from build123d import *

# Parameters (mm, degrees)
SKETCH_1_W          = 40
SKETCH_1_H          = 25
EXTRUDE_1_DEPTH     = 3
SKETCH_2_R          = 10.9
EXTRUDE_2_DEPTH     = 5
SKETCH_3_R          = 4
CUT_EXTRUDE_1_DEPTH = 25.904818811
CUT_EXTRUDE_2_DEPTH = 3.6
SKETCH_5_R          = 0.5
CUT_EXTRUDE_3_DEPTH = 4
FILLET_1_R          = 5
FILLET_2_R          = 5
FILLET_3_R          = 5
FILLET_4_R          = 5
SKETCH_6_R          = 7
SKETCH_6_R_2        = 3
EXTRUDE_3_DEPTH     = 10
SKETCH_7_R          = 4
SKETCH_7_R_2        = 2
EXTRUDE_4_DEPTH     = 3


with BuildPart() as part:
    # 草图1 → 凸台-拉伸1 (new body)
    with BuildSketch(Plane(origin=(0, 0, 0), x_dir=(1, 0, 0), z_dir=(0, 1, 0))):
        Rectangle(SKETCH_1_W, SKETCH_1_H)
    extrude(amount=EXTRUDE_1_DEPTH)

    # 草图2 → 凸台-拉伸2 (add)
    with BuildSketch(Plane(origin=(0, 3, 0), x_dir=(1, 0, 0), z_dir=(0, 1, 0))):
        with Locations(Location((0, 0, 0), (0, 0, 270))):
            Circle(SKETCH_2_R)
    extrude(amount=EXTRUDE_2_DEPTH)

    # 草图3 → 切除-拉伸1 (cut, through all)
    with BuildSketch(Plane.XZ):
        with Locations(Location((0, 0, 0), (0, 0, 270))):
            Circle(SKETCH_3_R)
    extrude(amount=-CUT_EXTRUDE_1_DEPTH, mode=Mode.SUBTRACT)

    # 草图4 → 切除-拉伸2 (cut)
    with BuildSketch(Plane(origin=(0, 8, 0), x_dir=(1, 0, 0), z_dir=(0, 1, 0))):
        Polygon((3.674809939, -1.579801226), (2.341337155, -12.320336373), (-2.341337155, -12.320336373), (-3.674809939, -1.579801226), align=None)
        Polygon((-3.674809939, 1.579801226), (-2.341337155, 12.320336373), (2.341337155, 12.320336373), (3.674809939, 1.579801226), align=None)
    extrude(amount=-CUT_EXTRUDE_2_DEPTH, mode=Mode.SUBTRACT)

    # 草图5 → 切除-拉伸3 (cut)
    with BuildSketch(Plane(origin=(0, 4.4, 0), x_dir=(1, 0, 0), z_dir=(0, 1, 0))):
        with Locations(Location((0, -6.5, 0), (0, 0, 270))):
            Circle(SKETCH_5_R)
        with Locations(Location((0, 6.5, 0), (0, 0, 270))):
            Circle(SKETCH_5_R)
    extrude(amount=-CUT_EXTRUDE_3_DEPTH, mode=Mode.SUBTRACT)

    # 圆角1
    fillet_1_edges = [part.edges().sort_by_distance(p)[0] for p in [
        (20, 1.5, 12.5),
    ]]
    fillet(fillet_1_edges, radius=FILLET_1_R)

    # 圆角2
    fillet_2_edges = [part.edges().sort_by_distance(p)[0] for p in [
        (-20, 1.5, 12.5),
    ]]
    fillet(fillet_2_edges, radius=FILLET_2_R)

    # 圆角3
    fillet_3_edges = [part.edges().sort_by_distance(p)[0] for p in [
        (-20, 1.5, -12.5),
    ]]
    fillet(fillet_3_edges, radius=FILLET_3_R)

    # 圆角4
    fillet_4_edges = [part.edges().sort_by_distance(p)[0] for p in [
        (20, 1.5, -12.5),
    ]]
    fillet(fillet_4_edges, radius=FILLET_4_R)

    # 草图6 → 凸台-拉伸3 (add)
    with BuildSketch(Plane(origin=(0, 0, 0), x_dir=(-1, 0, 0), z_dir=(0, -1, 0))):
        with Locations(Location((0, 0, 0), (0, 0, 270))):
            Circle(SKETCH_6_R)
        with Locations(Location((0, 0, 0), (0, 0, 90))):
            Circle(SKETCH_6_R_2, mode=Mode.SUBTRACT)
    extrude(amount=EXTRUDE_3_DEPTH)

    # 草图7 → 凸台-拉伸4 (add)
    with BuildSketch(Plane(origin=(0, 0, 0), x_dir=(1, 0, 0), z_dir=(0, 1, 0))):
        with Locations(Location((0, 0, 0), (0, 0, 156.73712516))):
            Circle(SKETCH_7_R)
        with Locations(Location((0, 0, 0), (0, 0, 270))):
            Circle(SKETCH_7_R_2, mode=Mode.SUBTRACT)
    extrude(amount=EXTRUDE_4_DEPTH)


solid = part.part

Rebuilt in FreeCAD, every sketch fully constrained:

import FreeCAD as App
import Part
import Sketcher

V = App.Vector


def edges_at(feature, points):
    """Names of the edges that pass closest to the given points."""
    edges = feature.Shape.Edges
    near = lambda p: min(range(len(edges)), key=lambda i: edges[i].distToShape(Part.Vertex(*p))[0])
    return sorted({f"Edge{near(p) + 1}" for p in points})


def add_polygon(sketch, points):
    """Adds a closed chain of lines whose ends are joined by coincident constraints."""
    first, n = sketch.GeometryCount, len(points)
    for a, b in zip(points, points[1:] + points[:1]):
        sketch.addGeometry(Part.LineSegment(App.Vector(*a, 0), App.Vector(*b, 0)), False)
    for i in range(n):
        sketch.addConstraint(Sketcher.Constraint("Coincident", first + i, 2, first + (i + 1) % n, 1))

doc = App.newDocument("Part")
body = doc.addObject("PartDesign::Body", "Body")

# Sketch on XZ plane
sketch1 = doc.addObject("Sketcher::SketchObject", "Sketch")
body.addObject(sketch1)
sketch1.AttachmentSupport = (doc.XZ_Plane, [""])
sketch1.MapMode = "FlatFace"
add_polygon(sketch1, [(-20, -12), (-20, 12), (20, 12), (20, -12)])  # lines 0-3
sketch1.addConstraint(Sketcher.Constraint("Vertical", 0))
sketch1.addConstraint(Sketcher.Constraint("Horizontal", 1))
sketch1.addConstraint(Sketcher.Constraint("Vertical", 2))
sketch1.addConstraint(Sketcher.Constraint("Horizontal", 3))
sketch1.addConstraint(Sketcher.Constraint("Symmetric", 0, 2, 2, 2, -1, 1))
sketch1.addConstraint(Sketcher.Constraint("DistanceX", 1, 1, 1, 2, 40.0))
sketch1.addConstraint(Sketcher.Constraint("DistanceY", 0, 1, 0, 2, 25.0))
pad1 = doc.addObject("PartDesign::Pad", "Pad")
body.addObject(pad1)
pad1.Profile = sketch1
pad1.Length = 3
pad1.Reversed = True

# Sketch on XZ plane
sketch2 = doc.addObject("Sketcher::SketchObject", "Sketch001")
body.addObject(sketch2)
sketch2.AttachmentSupport = (doc.XZ_Plane, [""])
sketch2.MapMode = "FlatFace"
sketch2.AttachmentOffset = App.Placement(V(0, 0, -3), App.Rotation())
sketch2.addGeometry(Part.Circle(V(0, 0, 0), V(0, 0, 1), 11), False)
sketch2.addConstraint(Sketcher.Constraint("Coincident", 0, 3, -1, 1))
sketch2.addConstraint(Sketcher.Constraint("Diameter", 0, 21.8))
pad2 = doc.addObject("PartDesign::Pad", "Pad001")
body.addObject(pad2)
pad2.Profile = sketch2
pad2.Length = 5
pad2.Reversed = True

# Sketch on XZ plane
sketch3 = doc.addObject("Sketcher::SketchObject", "Sketch002")
body.addObject(sketch3)
sketch3.AttachmentSupport = (doc.XZ_Plane, [""])
sketch3.MapMode = "FlatFace"
sketch3.addGeometry(Part.Circle(V(0, 0, 0), V(0, 0, 1), 4), False)
sketch3.addConstraint(Sketcher.Constraint("Coincident", 0, 3, -1, 1))
sketch3.addConstraint(Sketcher.Constraint("Diameter", 0, 8.0))
pocket1 = doc.addObject("PartDesign::Pocket", "Pocket")
body.addObject(pocket1)
pocket1.Profile = sketch3
pocket1.Type = "ThroughAll"

# Sketch on XZ plane
sketch4 = doc.addObject("Sketcher::SketchObject", "Sketch003")
body.addObject(sketch4)
sketch4.AttachmentSupport = (doc.XZ_Plane, [""])
sketch4.MapMode = "FlatFace"
sketch4.AttachmentOffset = App.Placement(V(0, 0, -8), App.Rotation())
add_polygon(sketch4, [(2.3, 12.3), (3.7, 1.6), (-3.7, 1.6), (-2.3, 12.3)])  # lines 0-3
add_polygon(sketch4, [(-2.3, -12.3), (-3.7, -1.6), (3.7, -1.6), (2.3, -12.3)])  # lines 4-7
sketch4.addConstraint(Sketcher.Constraint("Horizontal", 1))
sketch4.addConstraint(Sketcher.Constraint("Horizontal", 3))
sketch4.addConstraint(Sketcher.Constraint("Horizontal", 5))
sketch4.addConstraint(Sketcher.Constraint("Horizontal", 7))
sketch4.addConstraint(Sketcher.Constraint("Symmetric", 0, 2, 4, 2, -1, 1))
sketch4.addConstraint(Sketcher.Constraint("Symmetric", 2, 2, 6, 2, -1, 1))
sketch4.addConstraint(Sketcher.Constraint("Parallel", 0, 4))
sketch4.addConstraint(Sketcher.Constraint("Parallel", 2, 6))
sketch4.addConstraint(Sketcher.Constraint("Vertical", 1, 2, 4, 2))
sketch4.addConstraint(Sketcher.Constraint("Vertical", 3, 2, 6, 2))
sketch4.addConstraint(Sketcher.Constraint("DistanceX", 1, 2, 1, 1, 7.34962))
sketch4.addConstraint(Sketcher.Constraint("DistanceY", -1, 1, 0, 2, 1.579801))
sketch4.addConstraint(Sketcher.Constraint("DistanceX", 3, 1, 3, 2, 4.682674))
sketch4.addConstraint(Sketcher.Constraint("Distance", 0, 10.822996))
pocket2 = doc.addObject("PartDesign::Pocket", "Pocket001")
body.addObject(pocket2)
pocket2.Profile = sketch4
pocket2.Length = 3.6
pocket2.Reversed = True

# Sketch on XZ plane
sketch5 = doc.addObject("Sketcher::SketchObject", "Sketch004")
body.addObject(sketch5)
sketch5.AttachmentSupport = (doc.XZ_Plane, [""])
sketch5.MapMode = "FlatFace"
sketch5.AttachmentOffset = App.Placement(V(0, 0, -4.4), App.Rotation())
sketch5.addGeometry(Part.Circle(V(0, 6.5, 0), V(0, 0, 1), 0.5), False)
sketch5.addGeometry(Part.Circle(V(0, -6.5, 0), V(0, 0, 1), 0.5), False)
sketch5.addConstraint(Sketcher.Constraint("Equal", 0, 1))
sketch5.addConstraint(Sketcher.Constraint("Symmetric", 0, 3, 1, 3, -1, 1))
sketch5.addConstraint(Sketcher.Constraint("PointOnObject", 0, 3, -2))
sketch5.addConstraint(Sketcher.Constraint("Diameter", 0, 1.0))
sketch5.addConstraint(Sketcher.Constraint("DistanceY", 1, 3, 0, 3, 13.0))
pocket3 = doc.addObject("PartDesign::Pocket", "Pocket002")
body.addObject(pocket3)
pocket3.Profile = sketch5
pocket3.Length = 4
pocket3.Reversed = True
doc.recompute()

fillet = doc.addObject("PartDesign::Fillet", "Fillet")
body.addObject(fillet)
fillet.Base = (pocket3, edges_at(pocket3, [(20, 1.5, 12.5)]))
fillet.Radius = 5
doc.recompute()

fillet2 = doc.addObject("PartDesign::Fillet", "Fillet001")
body.addObject(fillet2)
fillet2.Base = (fillet, edges_at(fillet, [(-20, 1.5, 12.5)]))
fillet2.Radius = 5
doc.recompute()

fillet3 = doc.addObject("PartDesign::Fillet", "Fillet002")
body.addObject(fillet3)
fillet3.Base = (fillet2, edges_at(fillet2, [(-20, 1.5, -12.5)]))
fillet3.Radius = 5
doc.recompute()

fillet4 = doc.addObject("PartDesign::Fillet", "Fillet003")
body.addObject(fillet4)
fillet4.Base = (fillet3, edges_at(fillet3, [(20, 1.5, -12.5)]))
fillet4.Radius = 5

# Sketch on XZ plane
sketch6 = doc.addObject("Sketcher::SketchObject", "Sketch005")
body.addObject(sketch6)
sketch6.AttachmentSupport = (doc.XZ_Plane, [""])
sketch6.MapMode = "FlatFace"
sketch6.addGeometry(Part.Circle(V(0, 0, 0), V(0, 0, 1), 7), False)
sketch6.addGeometry(Part.Circle(V(0, 0, 0), V(0, 0, 1), 3), False)
sketch6.addConstraint(Sketcher.Constraint("Coincident", 0, 3, -1, 1))
sketch6.addConstraint(Sketcher.Constraint("Coincident", 1, 3, -1, 1))
sketch6.addConstraint(Sketcher.Constraint("Diameter", 0, 14.0))
sketch6.addConstraint(Sketcher.Constraint("Diameter", 1, 6.0))
pad3 = doc.addObject("PartDesign::Pad", "Pad002")
body.addObject(pad3)
pad3.Profile = sketch6
pad3.Length = 10

# Sketch on XZ plane
sketch7 = doc.addObject("Sketcher::SketchObject", "Sketch006")
body.addObject(sketch7)
sketch7.AttachmentSupport = (doc.XZ_Plane, [""])
sketch7.MapMode = "FlatFace"
sketch7.addGeometry(Part.Circle(V(0, 0, 0), V(0, 0, 1), 4), False)
sketch7.addGeometry(Part.Circle(V(0, 0, 0), V(0, 0, 1), 2), False)
sketch7.addConstraint(Sketcher.Constraint("Coincident", 0, 3, -1, 1))
sketch7.addConstraint(Sketcher.Constraint("Coincident", 1, 3, -1, 1))
sketch7.addConstraint(Sketcher.Constraint("Diameter", 0, 8.0))
sketch7.addConstraint(Sketcher.Constraint("Diameter", 1, 4.0))
pad4 = doc.addObject("PartDesign::Pad", "Pad003")
body.addObject(pad4)
pad4.Profile = sketch7
pad4.Length = 3
pad4.Reversed = True

doc.recompute()
